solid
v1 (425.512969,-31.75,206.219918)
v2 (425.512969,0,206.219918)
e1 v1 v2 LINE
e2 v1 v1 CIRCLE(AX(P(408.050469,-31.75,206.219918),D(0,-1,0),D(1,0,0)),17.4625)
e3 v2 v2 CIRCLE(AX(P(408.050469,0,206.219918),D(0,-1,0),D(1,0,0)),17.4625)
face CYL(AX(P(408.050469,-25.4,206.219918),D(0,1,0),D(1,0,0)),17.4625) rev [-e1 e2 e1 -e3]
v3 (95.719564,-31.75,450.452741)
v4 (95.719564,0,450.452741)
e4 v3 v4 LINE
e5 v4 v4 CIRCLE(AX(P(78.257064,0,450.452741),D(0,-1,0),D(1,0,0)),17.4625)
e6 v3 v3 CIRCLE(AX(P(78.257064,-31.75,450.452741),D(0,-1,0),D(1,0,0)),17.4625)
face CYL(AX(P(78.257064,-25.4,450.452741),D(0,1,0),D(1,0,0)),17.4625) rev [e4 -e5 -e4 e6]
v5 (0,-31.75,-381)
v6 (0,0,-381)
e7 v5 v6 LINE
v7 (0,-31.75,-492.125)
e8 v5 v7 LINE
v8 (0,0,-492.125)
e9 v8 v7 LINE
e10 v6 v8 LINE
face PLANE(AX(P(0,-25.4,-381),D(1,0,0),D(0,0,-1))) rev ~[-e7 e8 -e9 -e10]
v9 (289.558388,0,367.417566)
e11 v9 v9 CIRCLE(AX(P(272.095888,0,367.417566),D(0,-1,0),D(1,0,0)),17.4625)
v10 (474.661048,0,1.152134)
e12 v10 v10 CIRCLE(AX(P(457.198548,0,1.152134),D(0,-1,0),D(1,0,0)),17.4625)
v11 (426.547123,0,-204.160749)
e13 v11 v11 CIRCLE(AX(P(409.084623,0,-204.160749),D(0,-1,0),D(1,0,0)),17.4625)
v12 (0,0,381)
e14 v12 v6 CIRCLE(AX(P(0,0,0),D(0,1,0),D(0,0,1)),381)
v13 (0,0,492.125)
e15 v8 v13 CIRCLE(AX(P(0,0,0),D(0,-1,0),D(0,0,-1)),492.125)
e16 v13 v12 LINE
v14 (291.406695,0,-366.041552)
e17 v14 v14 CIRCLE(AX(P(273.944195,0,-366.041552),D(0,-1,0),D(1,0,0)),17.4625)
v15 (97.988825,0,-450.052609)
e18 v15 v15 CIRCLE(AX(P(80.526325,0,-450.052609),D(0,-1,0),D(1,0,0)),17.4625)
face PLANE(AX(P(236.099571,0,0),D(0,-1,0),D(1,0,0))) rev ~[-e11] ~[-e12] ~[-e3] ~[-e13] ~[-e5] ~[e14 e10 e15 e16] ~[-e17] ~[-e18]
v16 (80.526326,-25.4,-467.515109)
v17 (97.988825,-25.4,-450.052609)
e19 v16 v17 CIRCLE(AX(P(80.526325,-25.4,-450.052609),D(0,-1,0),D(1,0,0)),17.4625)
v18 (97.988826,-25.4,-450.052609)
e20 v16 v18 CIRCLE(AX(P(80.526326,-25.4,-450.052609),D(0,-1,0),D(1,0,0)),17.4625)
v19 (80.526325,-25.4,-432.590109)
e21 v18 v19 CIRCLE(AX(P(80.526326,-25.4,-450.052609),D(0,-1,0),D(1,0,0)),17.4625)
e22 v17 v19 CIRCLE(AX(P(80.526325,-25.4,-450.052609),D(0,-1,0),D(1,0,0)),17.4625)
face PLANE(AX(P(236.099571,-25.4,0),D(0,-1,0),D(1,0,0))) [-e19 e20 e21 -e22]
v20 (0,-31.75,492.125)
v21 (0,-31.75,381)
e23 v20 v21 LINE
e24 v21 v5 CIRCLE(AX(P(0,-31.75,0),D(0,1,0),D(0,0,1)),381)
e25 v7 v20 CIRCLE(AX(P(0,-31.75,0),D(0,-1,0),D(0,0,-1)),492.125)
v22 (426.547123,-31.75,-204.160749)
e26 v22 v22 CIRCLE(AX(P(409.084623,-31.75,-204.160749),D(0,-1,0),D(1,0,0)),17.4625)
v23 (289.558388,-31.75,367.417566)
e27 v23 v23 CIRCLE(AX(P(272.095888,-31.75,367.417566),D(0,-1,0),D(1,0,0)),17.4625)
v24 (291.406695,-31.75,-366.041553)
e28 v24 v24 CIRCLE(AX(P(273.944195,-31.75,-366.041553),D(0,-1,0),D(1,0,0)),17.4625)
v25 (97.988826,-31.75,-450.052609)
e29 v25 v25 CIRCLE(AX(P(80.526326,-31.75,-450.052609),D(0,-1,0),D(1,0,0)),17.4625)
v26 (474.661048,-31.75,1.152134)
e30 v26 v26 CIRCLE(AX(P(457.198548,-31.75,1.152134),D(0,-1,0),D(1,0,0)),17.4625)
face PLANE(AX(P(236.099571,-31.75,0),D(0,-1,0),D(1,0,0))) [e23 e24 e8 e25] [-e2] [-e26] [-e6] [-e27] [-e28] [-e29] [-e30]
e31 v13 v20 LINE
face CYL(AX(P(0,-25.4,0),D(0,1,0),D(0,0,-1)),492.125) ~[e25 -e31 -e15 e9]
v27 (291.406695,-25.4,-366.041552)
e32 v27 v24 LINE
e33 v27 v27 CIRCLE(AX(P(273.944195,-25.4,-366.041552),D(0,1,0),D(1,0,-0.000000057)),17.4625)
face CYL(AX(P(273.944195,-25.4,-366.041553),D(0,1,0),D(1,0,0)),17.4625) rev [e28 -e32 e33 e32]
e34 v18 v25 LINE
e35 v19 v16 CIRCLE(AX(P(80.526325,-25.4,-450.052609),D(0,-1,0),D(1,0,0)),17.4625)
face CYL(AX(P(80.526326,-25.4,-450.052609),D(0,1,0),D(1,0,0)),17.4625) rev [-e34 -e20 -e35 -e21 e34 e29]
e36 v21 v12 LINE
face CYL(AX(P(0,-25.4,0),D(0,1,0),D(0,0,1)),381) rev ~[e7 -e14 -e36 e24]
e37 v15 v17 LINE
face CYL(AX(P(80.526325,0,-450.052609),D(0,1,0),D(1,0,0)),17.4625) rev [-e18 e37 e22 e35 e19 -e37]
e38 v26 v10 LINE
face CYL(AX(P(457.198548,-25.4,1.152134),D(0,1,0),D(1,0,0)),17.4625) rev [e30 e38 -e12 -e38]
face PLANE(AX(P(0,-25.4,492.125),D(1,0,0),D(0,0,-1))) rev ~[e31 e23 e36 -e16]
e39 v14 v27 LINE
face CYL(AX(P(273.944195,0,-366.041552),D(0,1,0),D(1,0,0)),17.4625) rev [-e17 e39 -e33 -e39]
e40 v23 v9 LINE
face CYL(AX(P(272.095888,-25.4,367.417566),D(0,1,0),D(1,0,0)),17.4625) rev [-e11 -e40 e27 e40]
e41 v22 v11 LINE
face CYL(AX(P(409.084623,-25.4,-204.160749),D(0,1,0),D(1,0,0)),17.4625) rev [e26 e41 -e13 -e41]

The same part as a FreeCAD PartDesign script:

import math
import FreeCAD as App
import Part
import Sketcher
Q = App.Units.Quantity

doc = App.newDocument("Part")
params = doc.addObject("Spreadsheet::Sheet", "Params")
for row, (alias, value) in enumerate([
    ("sketch1_radius", "15 in"),
    ("sketch1_diameter", "1.375 in"),
    ("sketch1_radius2", "19.375 in"),
    ("pad1_length", "1 in"),
    ("sketch2_radius", "15 in"),
    ("sketch2_diameter", "1.375 in"),
    ("sketch2_radius2", "19.375 in"),
    ("pad2_length", "0.25 in"),
], start=1):
    params.set(f"A{row}", alias)
    params.set(f"B{row}", "=" + value)
    params.setAlias(f"B{row}", alias)

body = doc.addObject("PartDesign::Body", "Body")

# Sketch on XZ plane
sketch1 = body.newObject("Sketcher::SketchObject", "Sketch")
sketch1.AttachmentSupport = (doc.getObject("XZ_Plane"), [""])
sketch1.MapMode = "FlatFace"
sketch1.addGeometry([
    Part.ArcOfCircle(Part.Circle(App.Vector(0, 0, 0), App.Vector(0, 0, 1), 492), math.radians(-90), math.radians(90)),  # 0
    Part.LineSegment(App.Vector(0, 492, 0), App.Vector(0, 381, 0)),  # 1
    Part.ArcOfCircle(Part.Circle(App.Vector(0, 0, 0), App.Vector(0, 0, 1), 381), math.radians(-90), math.radians(90)),  # 2
    Part.LineSegment(App.Vector(0, -381, 0), App.Vector(0, -492, 0)),  # 3
    Part.Circle(App.Vector(81, -450, 0), App.Vector(0, 0, 1), 17),  # 4
    Part.Circle(App.Vector(274, -366, 0), App.Vector(0, 0, 1), 17),  # 5
    Part.Circle(App.Vector(409, -204, 0), App.Vector(0, 0, 1), 17),  # 6
    Part.Circle(App.Vector(78, 450, 0), App.Vector(0, 0, 1), 17),  # 7
    Part.Circle(App.Vector(457, 1, 0), App.Vector(0, 0, 1), 17),  # 8
    Part.Circle(App.Vector(408, 206, 0), App.Vector(0, 0, 1), 17),  # 9
    Part.Circle(App.Vector(272, 367, 0), App.Vector(0, 0, 1), 17),  # 10
], False)
sketch1.addConstraint([
    Sketcher.Constraint("Coincident", 0, 2, 1, 1),
    Sketcher.Constraint("Coincident", 1, 2, 2, 2),
    Sketcher.Constraint("Coincident", 2, 1, 3, 1),
    Sketcher.Constraint("Coincident", 3, 2, 0, 1),
    Sketcher.Constraint("Vertical", 1),
    Sketcher.Constraint("Vertical", 3),
    Sketcher.Constraint("Coincident", 0, 3, -1, 1),
    Sketcher.Constraint("Coincident", 2, 3, -1, 1),
    Sketcher.Constraint("Equal", 4, 5),
    Sketcher.Constraint("Equal", 5, 6),
    Sketcher.Constraint("Equal", 6, 7),
    Sketcher.Constraint("Equal", 7, 8),
    Sketcher.Constraint("Equal", 8, 9),
    Sketcher.Constraint("Equal", 9, 10),
    Sketcher.Constraint("PointOnObject", 1, 2, -2),
    Sketcher.Constraint("PointOnObject", 3, 2, -2),
    Sketcher.Constraint("Radius", 2, Q("15 in")),
    Sketcher.Constraint("Diameter", 4, Q("1.375 in")),
    Sketcher.Constraint("Radius", 0, Q("19.375 in")),
    Sketcher.Constraint("DistanceX", 4, 3, 6, 3, 328.558298),
    Sketcher.Constraint("DistanceY", 4, 3, -1, 1, 450.052609),
    Sketcher.Constraint("DistanceY", 6, 3, -1, 1, 204.160749),
    Sketcher.Constraint("DistanceY", -1, 1, 7, 3, 450.452741),
    Sketcher.Constraint("DistanceX", -1, 1, 8, 3, 457.198548),
    Sketcher.Constraint("DistanceX", -1, 1, 9, 3, 408.050469),
    Sketcher.Constraint("DistanceY", -1, 1, 9, 3, 206.219918),
    Sketcher.Constraint("DistanceX", -1, 1, 10, 3, 272.095888),
    Sketcher.Constraint("DistanceX", 4, 3, 5, 3, 193.41787),
    Sketcher.Constraint("DistanceX", 7, 3, 6, 3, 330.827559),
    Sketcher.Constraint("DistanceY", 9, 3, 10, 3, 161.197648),
    Sketcher.Constraint("DistanceX", -1, 1, 4, 3, 80.526325),
    Sketcher.Constraint("DistanceY", 5, 3, -1, 1, 366.041552),
    Sketcher.Constraint("DistanceY", -1, 1, 8, 3, 1.152134),
])
sketch1.setExpression("Constraints[16]", "Params.sketch1_radius")
sketch1.setExpression("Constraints[17]", "Params.sketch1_diameter")
sketch1.setExpression("Constraints[18]", "Params.sketch1_radius2")
pad1 = body.newObject("PartDesign::Pad", "Pad")
pad1.Profile = sketch1
pad1.setExpression("Length", "Params.pad1_length")

# Sketch on XZ plane
sketch2 = body.newObject("Sketcher::SketchObject", "Sketch001")
sketch2.AttachmentSupport = (doc.getObject("XZ_Plane"), [""])
sketch2.MapMode = "FlatFace"
sketch2.AttachmentOffset = App.Placement(App.Vector(0, 0, 1 * 25.4), App.Rotation())
sketch2.addGeometry([
    Part.LineSegment(App.Vector(0, -381, 0), App.Vector(0, -492, 0)),  # 0
    Part.ArcOfCircle(Part.Circle(App.Vector(0, 0, 0), App.Vector(0, 0, 1), 492), math.radians(-90), math.radians(90)),  # 1
    Part.LineSegment(App.Vector(0, 492, 0), App.Vector(0, 381, 0)),  # 2
    Part.ArcOfCircle(Part.Circle(App.Vector(0, 0, 0), App.Vector(0, 0, 1), 381), math.radians(-90), math.radians(90)),  # 3
    Part.Circle(App.Vector(81, -450, 0), App.Vector(0, 0, 1), 17),  # 4
    Part.Circle(App.Vector(274, -366, 0), App.Vector(0, 0, 1), 17),  # 5
    Part.Circle(App.Vector(409, -204, 0), App.Vector(0, 0, 1), 17),  # 6
    Part.Circle(App.Vector(78, 450, 0), App.Vector(0, 0, 1), 17),  # 7
    Part.Circle(App.Vector(457, 1, 0), App.Vector(0, 0, 1), 17),  # 8
    Part.Circle(App.Vector(408, 206, 0), App.Vector(0, 0, 1), 17),  # 9
    Part.Circle(App.Vector(272, 367, 0), App.Vector(0, 0, 1), 17),  # 10
], False)
sketch2.addConstraint([
    Sketcher.Constraint("Coincident", 0, 2, 1, 1),
    Sketcher.Constraint("Coincident", 1, 2, 2, 1),
    Sketcher.Constraint("Coincident", 2, 2, 3, 2),
    Sketcher.Constraint("Coincident", 3, 1, 0, 1),
    Sketcher.Constraint("Vertical", 0),
    Sketcher.Constraint("Vertical", 2),
    Sketcher.Constraint("Coincident", 1, 3, -1, 1),
    Sketcher.Constraint("Coincident", 3, 3, -1, 1),
    Sketcher.Constraint("Equal", 4, 5),
    Sketcher.Constraint("Equal", 5, 6),
    Sketcher.Constraint("Equal", 6, 7),
    Sketcher.Constraint("Equal", 7, 8),
    Sketcher.Constraint("Equal", 8, 9),
    Sketcher.Constraint("Equal", 9, 10),
    Sketcher.Constraint("PointOnObject", 0, 2, -2),
    Sketcher.Constraint("PointOnObject", 2, 2, -2),
    Sketcher.Constraint("Radius", 3, Q("15 in")),
    Sketcher.Constraint("Diameter", 4, Q("1.375 in")),
    Sketcher.Constraint("Radius", 1, Q("19.375 in")),
    Sketcher.Constraint("DistanceY", 4, 3, -1, 1, 450.052609),
    Sketcher.Constraint("DistanceY", 6, 3, -1, 1, 204.160749),
    Sketcher.Constraint("DistanceY", -1, 1, 7, 3, 450.452741),
    Sketcher.Constraint("DistanceX", -1, 1, 8, 3, 457.198548),
    Sketcher.Constraint("DistanceX", -1, 1, 9, 3, 408.050469),
    Sketcher.Constraint("DistanceY", -1, 1, 9, 3, 206.219918),
    Sketcher.Constraint("DistanceX", -1, 1, 10, 3, 272.095888),
    Sketcher.Constraint("DistanceX", 4, 3, 5, 3, 193.417869),
    Sketcher.Constraint("DistanceX", 5, 3, 6, 3, 135.140428),
    Sketcher.Constraint("DistanceX", 7, 3, 6, 3, 330.827559),
    Sketcher.Constraint("DistanceY", 9, 3, 10, 3, 161.197648),
    Sketcher.Constraint("DistanceX", -1, 1, 4, 3, 80.526326),
    Sketcher.Constraint("DistanceY", 5, 3, -1, 1, 366.041553),
    Sketcher.Constraint("DistanceY", -1, 1, 8, 3, 1.152134),
])
sketch2.setExpression("Constraints[16]", "Params.sketch2_radius")
sketch2.setExpression("Constraints[17]", "Params.sketch2_diameter")
sketch2.setExpression("Constraints[18]", "Params.sketch2_radius2")
pad2 = body.newObject("PartDesign::Pad", "Pad001")
pad2.Profile = sketch2
pad2.setExpression("Length", "Params.pad2_length")

doc.recompute()
